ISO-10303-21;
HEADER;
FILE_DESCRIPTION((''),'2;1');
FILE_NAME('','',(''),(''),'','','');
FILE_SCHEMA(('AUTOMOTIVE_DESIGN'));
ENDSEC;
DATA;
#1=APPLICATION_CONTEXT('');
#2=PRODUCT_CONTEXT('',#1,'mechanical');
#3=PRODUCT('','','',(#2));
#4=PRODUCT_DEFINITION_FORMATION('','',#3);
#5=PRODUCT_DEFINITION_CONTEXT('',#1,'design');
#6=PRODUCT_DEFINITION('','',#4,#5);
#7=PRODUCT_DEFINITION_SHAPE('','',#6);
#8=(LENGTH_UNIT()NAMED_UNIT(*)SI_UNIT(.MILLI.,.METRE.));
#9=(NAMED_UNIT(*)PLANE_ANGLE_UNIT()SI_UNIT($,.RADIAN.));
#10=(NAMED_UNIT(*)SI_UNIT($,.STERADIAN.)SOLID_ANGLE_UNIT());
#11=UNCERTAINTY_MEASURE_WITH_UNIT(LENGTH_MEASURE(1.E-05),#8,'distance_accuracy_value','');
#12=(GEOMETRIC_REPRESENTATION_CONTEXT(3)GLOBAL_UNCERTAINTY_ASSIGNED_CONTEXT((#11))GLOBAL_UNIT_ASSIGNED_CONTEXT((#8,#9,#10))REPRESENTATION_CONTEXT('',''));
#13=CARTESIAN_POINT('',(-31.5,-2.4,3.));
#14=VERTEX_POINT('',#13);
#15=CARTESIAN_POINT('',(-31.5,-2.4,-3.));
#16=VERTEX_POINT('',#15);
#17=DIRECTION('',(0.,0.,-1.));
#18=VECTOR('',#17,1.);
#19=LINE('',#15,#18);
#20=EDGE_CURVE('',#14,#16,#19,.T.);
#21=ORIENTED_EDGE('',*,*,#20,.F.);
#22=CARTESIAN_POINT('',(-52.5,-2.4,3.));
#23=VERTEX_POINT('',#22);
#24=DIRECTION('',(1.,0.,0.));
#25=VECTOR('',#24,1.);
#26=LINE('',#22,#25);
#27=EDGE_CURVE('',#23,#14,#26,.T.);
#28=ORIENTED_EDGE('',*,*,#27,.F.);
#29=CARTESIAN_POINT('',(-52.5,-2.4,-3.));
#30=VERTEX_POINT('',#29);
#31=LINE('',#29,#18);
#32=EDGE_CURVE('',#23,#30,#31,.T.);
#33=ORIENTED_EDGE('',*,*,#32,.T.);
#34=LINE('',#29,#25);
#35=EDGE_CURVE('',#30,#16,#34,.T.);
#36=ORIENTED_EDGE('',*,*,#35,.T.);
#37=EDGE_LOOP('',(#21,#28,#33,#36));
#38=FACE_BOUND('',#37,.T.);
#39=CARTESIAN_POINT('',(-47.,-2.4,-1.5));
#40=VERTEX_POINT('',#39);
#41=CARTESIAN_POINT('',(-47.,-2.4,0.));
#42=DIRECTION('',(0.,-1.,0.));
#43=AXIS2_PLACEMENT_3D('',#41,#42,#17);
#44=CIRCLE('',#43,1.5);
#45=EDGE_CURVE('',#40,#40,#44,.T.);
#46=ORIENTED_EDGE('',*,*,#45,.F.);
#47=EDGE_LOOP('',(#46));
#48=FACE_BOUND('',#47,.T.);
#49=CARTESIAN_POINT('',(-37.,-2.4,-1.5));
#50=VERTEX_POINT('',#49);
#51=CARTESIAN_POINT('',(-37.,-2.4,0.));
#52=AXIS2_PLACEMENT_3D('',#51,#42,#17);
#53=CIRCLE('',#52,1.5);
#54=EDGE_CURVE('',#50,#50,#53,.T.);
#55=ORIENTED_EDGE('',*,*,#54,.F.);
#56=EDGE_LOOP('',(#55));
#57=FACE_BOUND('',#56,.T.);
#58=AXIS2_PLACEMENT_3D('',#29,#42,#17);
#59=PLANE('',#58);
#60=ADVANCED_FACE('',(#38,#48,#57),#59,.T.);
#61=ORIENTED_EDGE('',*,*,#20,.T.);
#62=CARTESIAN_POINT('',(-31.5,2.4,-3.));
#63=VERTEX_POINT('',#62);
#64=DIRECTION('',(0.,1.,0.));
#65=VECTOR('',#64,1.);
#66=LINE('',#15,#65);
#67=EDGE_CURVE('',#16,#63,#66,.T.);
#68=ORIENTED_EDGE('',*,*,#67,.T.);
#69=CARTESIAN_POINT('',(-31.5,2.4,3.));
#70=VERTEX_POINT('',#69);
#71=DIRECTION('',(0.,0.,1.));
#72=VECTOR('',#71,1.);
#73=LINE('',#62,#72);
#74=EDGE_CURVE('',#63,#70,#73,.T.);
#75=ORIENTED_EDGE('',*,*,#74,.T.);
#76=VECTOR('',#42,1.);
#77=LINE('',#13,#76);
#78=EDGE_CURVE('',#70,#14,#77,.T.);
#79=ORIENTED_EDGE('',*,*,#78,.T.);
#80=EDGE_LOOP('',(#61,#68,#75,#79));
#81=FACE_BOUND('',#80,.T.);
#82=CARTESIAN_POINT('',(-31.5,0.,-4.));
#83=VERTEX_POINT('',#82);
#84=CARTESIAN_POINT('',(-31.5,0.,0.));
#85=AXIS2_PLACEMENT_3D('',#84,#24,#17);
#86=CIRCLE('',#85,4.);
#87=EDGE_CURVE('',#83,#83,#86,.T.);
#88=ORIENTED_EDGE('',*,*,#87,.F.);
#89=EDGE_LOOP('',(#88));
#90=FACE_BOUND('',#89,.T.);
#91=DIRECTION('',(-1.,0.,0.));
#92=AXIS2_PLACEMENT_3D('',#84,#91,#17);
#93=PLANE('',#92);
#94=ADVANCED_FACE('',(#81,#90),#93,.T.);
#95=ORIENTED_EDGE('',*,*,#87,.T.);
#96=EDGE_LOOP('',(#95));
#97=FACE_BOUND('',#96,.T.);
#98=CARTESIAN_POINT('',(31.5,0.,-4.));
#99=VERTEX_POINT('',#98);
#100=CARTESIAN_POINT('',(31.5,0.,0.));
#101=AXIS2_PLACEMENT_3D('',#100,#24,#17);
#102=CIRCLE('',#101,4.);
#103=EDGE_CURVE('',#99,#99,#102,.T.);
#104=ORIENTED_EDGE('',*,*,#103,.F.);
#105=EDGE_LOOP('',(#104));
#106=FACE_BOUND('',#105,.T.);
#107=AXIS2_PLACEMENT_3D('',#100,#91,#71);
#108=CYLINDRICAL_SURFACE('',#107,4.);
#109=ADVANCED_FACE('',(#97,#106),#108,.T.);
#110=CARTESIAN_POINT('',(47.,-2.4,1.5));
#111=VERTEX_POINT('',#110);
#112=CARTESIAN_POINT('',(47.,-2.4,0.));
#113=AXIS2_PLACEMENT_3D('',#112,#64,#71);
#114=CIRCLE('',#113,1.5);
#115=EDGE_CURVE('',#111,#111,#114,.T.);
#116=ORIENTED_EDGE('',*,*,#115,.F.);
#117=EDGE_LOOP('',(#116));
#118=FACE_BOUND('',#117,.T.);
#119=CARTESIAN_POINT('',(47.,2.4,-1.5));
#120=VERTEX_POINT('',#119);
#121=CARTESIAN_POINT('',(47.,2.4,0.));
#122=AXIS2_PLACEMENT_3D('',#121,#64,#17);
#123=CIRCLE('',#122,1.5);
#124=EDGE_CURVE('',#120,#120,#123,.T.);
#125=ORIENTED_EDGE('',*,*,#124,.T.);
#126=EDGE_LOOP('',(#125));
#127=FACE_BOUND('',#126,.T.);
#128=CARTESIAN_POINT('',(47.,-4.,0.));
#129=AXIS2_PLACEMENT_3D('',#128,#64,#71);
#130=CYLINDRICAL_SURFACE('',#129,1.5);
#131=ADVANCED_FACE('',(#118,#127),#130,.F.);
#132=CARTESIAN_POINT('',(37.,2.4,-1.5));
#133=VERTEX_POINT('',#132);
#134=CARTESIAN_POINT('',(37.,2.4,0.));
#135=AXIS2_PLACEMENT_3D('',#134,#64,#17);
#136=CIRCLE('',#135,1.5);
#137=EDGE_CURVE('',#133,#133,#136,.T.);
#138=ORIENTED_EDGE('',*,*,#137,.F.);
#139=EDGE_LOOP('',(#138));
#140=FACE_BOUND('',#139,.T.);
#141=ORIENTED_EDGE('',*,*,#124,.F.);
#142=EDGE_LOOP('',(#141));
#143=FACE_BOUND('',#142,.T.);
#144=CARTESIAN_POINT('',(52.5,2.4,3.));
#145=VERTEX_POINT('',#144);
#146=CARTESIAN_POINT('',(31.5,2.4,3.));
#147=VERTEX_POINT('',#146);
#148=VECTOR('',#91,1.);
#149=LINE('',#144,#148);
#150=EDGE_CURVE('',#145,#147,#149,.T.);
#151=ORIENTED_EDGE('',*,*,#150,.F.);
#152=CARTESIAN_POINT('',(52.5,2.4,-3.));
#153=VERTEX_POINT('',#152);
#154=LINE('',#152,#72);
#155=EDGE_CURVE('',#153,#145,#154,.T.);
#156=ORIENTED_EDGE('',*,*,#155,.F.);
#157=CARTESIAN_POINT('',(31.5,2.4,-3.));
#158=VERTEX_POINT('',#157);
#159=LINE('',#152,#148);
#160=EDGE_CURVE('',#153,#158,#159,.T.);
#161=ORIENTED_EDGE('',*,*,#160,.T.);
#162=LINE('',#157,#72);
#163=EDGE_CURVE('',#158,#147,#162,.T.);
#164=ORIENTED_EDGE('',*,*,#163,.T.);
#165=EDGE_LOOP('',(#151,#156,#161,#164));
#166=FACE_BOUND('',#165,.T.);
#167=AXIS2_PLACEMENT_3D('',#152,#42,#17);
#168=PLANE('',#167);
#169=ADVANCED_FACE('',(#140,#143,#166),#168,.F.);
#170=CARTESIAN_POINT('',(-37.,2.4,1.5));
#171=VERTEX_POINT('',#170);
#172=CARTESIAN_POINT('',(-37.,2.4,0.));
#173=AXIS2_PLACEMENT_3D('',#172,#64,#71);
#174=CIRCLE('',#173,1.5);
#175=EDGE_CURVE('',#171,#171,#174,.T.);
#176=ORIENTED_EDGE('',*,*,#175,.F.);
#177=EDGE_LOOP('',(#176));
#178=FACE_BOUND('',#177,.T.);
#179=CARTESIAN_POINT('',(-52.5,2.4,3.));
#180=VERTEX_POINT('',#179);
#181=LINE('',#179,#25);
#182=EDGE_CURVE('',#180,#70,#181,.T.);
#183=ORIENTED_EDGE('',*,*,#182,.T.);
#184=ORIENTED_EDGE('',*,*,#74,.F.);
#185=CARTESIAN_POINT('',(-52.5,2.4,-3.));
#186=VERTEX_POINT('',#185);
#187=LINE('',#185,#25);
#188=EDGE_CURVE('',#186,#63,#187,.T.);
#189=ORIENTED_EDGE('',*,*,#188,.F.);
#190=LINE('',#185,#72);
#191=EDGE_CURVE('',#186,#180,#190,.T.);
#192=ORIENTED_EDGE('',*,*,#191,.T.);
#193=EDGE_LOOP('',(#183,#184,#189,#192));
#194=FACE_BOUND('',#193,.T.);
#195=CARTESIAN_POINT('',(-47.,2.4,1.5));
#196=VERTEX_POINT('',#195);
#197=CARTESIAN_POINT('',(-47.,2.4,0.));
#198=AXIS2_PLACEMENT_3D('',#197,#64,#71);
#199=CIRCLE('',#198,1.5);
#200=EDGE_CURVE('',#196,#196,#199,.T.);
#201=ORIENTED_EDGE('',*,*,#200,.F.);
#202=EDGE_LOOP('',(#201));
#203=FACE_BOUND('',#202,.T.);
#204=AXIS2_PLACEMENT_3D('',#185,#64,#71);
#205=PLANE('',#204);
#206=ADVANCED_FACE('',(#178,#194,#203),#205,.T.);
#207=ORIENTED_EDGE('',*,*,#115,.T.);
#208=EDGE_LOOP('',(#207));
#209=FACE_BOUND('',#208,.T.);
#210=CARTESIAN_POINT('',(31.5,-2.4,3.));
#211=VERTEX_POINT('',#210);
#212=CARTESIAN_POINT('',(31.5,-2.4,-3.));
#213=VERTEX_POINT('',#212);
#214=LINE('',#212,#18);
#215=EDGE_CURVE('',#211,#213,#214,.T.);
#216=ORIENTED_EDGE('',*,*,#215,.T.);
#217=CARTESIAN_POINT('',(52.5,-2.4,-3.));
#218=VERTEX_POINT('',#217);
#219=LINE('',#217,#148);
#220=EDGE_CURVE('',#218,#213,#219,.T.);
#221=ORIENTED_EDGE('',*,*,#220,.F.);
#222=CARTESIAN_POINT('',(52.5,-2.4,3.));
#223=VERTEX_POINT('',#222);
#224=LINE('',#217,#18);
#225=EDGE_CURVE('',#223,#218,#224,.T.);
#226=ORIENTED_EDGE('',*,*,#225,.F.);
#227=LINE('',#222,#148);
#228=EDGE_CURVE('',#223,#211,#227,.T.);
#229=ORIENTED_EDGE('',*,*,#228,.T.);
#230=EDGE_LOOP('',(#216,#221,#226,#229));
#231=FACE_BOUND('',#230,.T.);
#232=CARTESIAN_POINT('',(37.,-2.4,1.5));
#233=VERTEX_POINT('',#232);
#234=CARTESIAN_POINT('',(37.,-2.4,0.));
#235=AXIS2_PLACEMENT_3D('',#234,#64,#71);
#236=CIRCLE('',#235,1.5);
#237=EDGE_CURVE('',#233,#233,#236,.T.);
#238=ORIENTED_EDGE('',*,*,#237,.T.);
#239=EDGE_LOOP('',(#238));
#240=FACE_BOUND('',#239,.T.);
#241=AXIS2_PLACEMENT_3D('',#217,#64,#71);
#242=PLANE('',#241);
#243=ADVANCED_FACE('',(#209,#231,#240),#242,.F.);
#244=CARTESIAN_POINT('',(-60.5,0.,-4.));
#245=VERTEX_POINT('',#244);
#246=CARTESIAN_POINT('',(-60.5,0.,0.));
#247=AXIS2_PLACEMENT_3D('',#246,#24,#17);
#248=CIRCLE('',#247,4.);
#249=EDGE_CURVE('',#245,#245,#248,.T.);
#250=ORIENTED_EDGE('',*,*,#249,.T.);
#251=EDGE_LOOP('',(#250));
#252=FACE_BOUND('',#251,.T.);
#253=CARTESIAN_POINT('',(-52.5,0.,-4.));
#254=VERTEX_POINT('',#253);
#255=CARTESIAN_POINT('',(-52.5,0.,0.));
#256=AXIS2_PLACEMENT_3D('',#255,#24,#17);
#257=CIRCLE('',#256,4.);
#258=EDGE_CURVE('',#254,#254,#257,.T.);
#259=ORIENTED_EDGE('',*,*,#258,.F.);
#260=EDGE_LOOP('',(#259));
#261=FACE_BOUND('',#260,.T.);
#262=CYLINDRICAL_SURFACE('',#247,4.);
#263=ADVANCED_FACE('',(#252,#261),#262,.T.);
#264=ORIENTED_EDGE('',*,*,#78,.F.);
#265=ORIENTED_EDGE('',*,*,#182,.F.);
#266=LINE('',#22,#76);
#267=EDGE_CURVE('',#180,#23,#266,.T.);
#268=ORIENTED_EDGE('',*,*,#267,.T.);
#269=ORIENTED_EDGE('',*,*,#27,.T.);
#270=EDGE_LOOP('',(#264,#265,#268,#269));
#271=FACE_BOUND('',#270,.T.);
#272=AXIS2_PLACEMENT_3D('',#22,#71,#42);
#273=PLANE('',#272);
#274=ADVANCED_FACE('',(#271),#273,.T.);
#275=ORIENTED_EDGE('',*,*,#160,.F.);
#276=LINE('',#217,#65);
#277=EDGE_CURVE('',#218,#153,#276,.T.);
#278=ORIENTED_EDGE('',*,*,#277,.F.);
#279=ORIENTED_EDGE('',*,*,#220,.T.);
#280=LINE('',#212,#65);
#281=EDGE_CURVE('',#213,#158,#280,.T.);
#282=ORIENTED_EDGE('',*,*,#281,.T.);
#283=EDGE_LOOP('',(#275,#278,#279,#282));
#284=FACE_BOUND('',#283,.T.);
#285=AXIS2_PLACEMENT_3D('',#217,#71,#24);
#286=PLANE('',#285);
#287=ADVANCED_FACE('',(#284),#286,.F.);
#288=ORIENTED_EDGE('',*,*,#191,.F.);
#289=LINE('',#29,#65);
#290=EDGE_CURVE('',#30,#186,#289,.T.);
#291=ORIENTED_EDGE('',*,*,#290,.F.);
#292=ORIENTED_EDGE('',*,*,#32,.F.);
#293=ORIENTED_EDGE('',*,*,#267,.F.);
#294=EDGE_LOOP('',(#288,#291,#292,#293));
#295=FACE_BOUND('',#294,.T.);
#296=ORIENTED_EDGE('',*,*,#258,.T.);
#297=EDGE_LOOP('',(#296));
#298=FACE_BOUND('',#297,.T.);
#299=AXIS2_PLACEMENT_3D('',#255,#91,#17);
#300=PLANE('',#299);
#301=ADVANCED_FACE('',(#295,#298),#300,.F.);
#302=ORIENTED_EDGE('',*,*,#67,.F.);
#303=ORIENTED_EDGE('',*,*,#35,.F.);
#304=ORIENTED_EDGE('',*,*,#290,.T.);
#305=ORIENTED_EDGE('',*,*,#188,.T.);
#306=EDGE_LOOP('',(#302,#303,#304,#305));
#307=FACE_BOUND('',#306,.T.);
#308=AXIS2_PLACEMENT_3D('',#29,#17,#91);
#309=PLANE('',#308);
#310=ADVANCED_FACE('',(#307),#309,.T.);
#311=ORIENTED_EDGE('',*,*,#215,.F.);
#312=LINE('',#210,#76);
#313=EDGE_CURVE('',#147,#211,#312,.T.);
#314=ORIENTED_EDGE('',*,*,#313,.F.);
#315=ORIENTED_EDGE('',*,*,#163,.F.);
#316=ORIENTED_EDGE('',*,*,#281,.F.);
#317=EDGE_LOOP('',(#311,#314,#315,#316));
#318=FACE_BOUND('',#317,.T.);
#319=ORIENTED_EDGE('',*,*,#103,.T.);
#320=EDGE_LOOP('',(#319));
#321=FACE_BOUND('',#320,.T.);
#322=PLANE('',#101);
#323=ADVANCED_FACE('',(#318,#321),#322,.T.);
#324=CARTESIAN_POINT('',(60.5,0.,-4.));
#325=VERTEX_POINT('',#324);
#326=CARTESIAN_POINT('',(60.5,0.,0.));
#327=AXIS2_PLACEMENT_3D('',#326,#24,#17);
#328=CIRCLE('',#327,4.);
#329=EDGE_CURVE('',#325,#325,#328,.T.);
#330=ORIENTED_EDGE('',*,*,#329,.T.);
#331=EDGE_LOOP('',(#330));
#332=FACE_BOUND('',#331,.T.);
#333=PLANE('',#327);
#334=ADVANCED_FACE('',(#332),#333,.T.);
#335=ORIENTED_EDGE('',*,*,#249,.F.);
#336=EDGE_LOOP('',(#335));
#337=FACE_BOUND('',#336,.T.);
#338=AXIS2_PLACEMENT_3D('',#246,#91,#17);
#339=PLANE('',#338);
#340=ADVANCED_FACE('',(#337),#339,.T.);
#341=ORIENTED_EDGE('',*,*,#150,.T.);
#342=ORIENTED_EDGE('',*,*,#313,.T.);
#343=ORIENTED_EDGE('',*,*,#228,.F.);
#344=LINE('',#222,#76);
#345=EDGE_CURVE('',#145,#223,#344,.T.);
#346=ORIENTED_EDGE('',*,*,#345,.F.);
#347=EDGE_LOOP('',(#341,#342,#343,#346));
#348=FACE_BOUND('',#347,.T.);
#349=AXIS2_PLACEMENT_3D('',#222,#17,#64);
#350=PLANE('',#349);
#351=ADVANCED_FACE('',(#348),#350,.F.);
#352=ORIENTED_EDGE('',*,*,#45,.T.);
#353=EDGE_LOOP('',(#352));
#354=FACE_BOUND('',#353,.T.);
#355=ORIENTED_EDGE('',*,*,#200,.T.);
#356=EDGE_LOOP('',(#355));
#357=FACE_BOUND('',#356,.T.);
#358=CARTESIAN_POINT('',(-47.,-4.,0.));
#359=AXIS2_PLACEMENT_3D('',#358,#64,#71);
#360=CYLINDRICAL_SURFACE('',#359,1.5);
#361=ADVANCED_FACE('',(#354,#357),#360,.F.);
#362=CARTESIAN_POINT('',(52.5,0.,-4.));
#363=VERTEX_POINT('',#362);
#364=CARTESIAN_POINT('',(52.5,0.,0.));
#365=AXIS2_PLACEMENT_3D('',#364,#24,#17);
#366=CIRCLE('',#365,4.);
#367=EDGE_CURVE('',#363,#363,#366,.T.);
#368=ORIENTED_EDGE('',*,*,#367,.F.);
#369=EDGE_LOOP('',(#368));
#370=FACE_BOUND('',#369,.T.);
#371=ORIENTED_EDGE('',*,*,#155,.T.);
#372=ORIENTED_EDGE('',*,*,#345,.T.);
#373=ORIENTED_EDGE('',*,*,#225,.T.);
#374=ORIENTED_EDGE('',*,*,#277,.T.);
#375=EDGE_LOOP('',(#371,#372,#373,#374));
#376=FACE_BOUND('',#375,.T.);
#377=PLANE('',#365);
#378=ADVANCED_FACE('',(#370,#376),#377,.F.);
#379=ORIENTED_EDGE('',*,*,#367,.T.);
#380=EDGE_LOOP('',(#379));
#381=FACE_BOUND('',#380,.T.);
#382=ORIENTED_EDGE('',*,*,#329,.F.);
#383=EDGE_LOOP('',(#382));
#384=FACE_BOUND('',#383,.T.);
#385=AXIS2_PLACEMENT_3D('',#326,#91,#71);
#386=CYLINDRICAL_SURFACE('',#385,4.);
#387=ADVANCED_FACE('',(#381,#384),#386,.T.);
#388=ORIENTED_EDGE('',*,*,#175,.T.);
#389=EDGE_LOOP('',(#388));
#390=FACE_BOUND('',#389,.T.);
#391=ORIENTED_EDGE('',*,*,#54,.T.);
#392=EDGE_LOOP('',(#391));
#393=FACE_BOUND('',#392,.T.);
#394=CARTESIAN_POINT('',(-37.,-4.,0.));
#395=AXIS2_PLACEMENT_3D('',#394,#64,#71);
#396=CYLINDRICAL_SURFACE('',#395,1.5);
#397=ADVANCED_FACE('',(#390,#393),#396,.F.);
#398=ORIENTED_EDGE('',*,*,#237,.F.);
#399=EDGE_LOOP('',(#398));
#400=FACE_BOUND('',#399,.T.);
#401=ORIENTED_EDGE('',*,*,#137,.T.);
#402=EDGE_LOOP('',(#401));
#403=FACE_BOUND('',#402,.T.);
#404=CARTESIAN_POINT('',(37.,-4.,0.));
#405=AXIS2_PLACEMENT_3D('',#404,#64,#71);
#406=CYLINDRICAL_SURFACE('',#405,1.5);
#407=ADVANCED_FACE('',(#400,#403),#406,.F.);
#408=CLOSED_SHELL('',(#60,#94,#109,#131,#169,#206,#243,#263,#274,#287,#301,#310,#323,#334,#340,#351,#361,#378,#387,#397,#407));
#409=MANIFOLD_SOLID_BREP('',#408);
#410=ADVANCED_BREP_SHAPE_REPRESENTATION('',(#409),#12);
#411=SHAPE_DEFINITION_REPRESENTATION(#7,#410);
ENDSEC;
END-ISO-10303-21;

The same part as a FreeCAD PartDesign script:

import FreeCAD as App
import Part
import Sketcher

V = App.Vector
Q = App.Units.Quantity


def add_polygon(sketch, points):
    """Adds a closed chain of lines whose ends are joined by coincident constraints."""
    first, n = sketch.GeometryCount, len(points)
    for a, b in zip(points, points[1:] + points[:1]):
        sketch.addGeometry(Part.LineSegment(App.Vector(*a, 0), App.Vector(*b, 0)), False)
    for i in range(n):
        sketch.addConstraint(Sketcher.Constraint("Coincident", first + i, 2, first + (i + 1) % n, 1))

doc = App.newDocument("Part")
body = doc.addObject("PartDesign::Body", "Body")

# Sketch on YZ plane
sketch1 = body.newObject("Sketcher::SketchObject", "Sketch")
sketch1.AttachmentSupport = (doc.getObject("YZ_Plane"), [""])
sketch1.MapMode = "FlatFace"
sketch1.addGeometry(Part.Circle(V(0, 0, 0), V(0, 0, 1), 4), False)
sketch1.addConstraint([
    Sketcher.Constraint("Coincident", 0, 3, -1, 1),
    Sketcher.Constraint("Diameter", 0, Q("8 mm")),
])
pad1 = body.newObject("PartDesign::Pad", "Pad")
pad1.Profile = sketch1
pad1.Length = 31.5

# Sketch on YZ plane
sketch2 = body.newObject("Sketcher::SketchObject", "Sketch001")
sketch2.AttachmentSupport = (doc.getObject("YZ_Plane"), [""])
sketch2.MapMode = "FlatFace"
sketch2.AttachmentOffset = App.Placement(V(0, 0, 31.5), App.Rotation())
add_polygon(sketch2, [(2.4, 3), (-2.4, 3), (-2.4, -3), (2.4, -3)])  # lines 0-3
sketch2.addConstraint([
    Sketcher.Constraint("Horizontal", 0),
    Sketcher.Constraint("Vertical", 1),
    Sketcher.Constraint("Horizontal", 2),
    Sketcher.Constraint("Vertical", 3),
    Sketcher.Constraint("Symmetric", 0, 2, 2, 2, -1, 1),
    Sketcher.Constraint("DistanceY", 1, 2, 1, 1, Q("6 mm")),
    Sketcher.Constraint("DistanceX", 0, 2, 0, 1, Q("4.8 mm")),
])
pad2 = body.newObject("PartDesign::Pad", "Pad001")
pad2.Profile = sketch2
pad2.Length = 21

# Sketch on YZ plane
sketch3 = body.newObject("Sketcher::SketchObject", "Sketch002")
sketch3.AttachmentSupport = (doc.getObject("YZ_Plane"), [""])
sketch3.MapMode = "FlatFace"
sketch3.AttachmentOffset = App.Placement(V(0, 0, 52.5), App.Rotation())
sketch3.addGeometry(Part.Circle(V(0, 0, 0), V(0, 0, 1), 4), False)
sketch3.addConstraint([
    Sketcher.Constraint("Coincident", 0, 3, -1, 1),
    Sketcher.Constraint("Diameter", 0, Q("8 mm")),
])
pad3 = body.newObject("PartDesign::Pad", "Pad002")
pad3.Profile = sketch3
pad3.Length = 8
doc.recompute()

mirrored = body.newObject("PartDesign::Mirrored", "Mirrored")
mirrored.Originals = [pad1, pad2, pad3]
mirrored.MirrorPlane = (doc.getObject("YZ_Plane"), [""])
body.Tip = mirrored

# Sketch on XZ plane
sketch4 = body.newObject("Sketcher::SketchObject", "Sketch003")
sketch4.AttachmentSupport = (doc.getObject("XZ_Plane"), [""])
sketch4.MapMode = "FlatFace"
sketch4.AttachmentOffset = App.Placement(V(0, 0, -2.4), App.Rotation())
sketch4.addGeometry([
    Part.Circle(V(-47, 0, 0), V(0, 0, 1), 1.5),
    Part.Circle(V(-37, 0, 0), V(0, 0, 1), 1.5),
    Part.Circle(V(47, 0, 0), V(0, 0, 1), 1.5),
    Part.Circle(V(37, 0, 0), V(0, 0, 1), 1.5),
], False)
sketch4.addConstraint([
    Sketcher.Constraint("Equal", 0, 1),
    Sketcher.Constraint("Equal", 1, 2),
    Sketcher.Constraint("Equal", 2, 3),
    Sketcher.Constraint("Symmetric", 0, 3, 2, 3, -1, 1),
    Sketcher.Constraint("Symmetric", 1, 3, 3, 3, -1, 1),
    Sketcher.Constraint("PointOnObject", 0, 3, -1),
    Sketcher.Constraint("PointOnObject", 1, 3, -1),
    Sketcher.Constraint("Diameter", 0, Q("3 mm")),
    Sketcher.Constraint("DistanceX", 0, 3, -1, 1, Q("47 mm")),
    Sketcher.Constraint("DistanceX", 1, 3, -1, 1, Q("37 mm")),
])
pocket1 = body.newObject("PartDesign::Pocket", "Pocket")
pocket1.Profile = sketch4
pocket1.Type = "ThroughAll"
pocket1.Reversed = True

doc.recompute()
